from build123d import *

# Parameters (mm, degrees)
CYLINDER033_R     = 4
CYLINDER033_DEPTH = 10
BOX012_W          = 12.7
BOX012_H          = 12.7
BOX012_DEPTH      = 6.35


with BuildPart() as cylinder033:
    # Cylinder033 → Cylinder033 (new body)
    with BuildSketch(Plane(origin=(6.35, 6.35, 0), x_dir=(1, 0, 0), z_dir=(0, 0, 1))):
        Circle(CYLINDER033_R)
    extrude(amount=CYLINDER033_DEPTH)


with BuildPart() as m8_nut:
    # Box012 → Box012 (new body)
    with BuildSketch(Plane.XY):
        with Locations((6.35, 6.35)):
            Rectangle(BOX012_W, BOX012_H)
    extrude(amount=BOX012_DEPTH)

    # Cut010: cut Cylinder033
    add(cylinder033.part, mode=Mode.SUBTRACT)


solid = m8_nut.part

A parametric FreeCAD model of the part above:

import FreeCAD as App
import Part
import Sketcher

doc = App.newDocument("Part")
params = doc.addObject("Spreadsheet::Sheet", "Params")
for row, (alias, value) in enumerate([
    ("sketch1_diameter", "8 mm"),
    ("pad1_length", "10 mm"),
    ("sketch2_width", "12.7 mm"),
    ("pad2_length", "6.35 mm"),
], start=1):
    params.set(f"A{row}", alias)
    params.set(f"B{row}", "=" + value)
    params.setAlias(f"B{row}", alias)

body = doc.addObject("PartDesign::Body", "Body")

sketch1 = body.newObject("Sketcher::SketchObject", "Sketch")
sketch1.AttachmentSupport = (doc.getObject("XY_Plane"), [""])
sketch1.MapMode = "FlatFace"
sketch1.addGeometry(Part.Circle(App.Vector(6.35, 6.35, 0), App.Vector(0, 0, 1), 4), False)
sketch1.addConstraint([
    Sketcher.Constraint("Diameter", 0, 8.0),
    Sketcher.Constraint("DistanceX", -1, 1, 0, 3, 6.35),
    Sketcher.Constraint("DistanceY", -1, 1, 0, 3, 6.35),
])
sketch1.setExpression("Constraints[0]", "Params.sketch1_diameter")
pad1 = body.newObject("PartDesign::Pad", "Pad")
pad1.Profile = sketch1
pad1.setExpression("Length", "Params.pad1_length")
body2 = doc.addObject("PartDesign::Body", "Body001")

sketch2 = body2.newObject("Sketcher::SketchObject", "Sketch001")
sketch2.AttachmentSupport = (doc.getObject("XY_Plane001"), [""])
sketch2.MapMode = "FlatFace"
sketch2.addGeometry([
    Part.LineSegment(App.Vector(0, 12.7, 0), App.Vector(0, 0, 0)),
    Part.LineSegment(App.Vector(0, 0, 0), App.Vector(12.7, 0, 0)),
    Part.LineSegment(App.Vector(12.7, 0, 0), App.Vector(12.7, 12.7, 0)),
    Part.LineSegment(App.Vector(12.7, 12.7, 0), App.Vector(0, 12.7, 0)),
], False)
sketch2.addConstraint([
    Sketcher.Constraint("Coincident", 0, 2, 1, 1),
    Sketcher.Constraint("Coincident", 1, 2, 2, 1),
    Sketcher.Constraint("Coincident", 2, 2, 3, 1),
    Sketcher.Constraint("Coincident", 3, 2, 0, 1),
    Sketcher.Constraint("Vertical", 0),
    Sketcher.Constraint("Horizontal", 1),
    Sketcher.Constraint("Vertical", 2),
    Sketcher.Constraint("Horizontal", 3),
    Sketcher.Constraint("Coincident", 0, 2, -1, 1),
    Sketcher.Constraint("Equal", 3, 0),
    Sketcher.Constraint("DistanceX", 1, 1, 1, 2, 12.7),
])
sketch2.setExpression("Constraints[10]", "Params.sketch2_width")
pad2 = body2.newObject("PartDesign::Pad", "Pad001")
pad2.Profile = sketch2
pad2.setExpression("Length", "Params.pad2_length")
doc.recompute()

boolean = body2.newObject("PartDesign::Boolean", "Boolean")
boolean.Type = "Cut"
boolean.addObjects([body])

doc.recompute()
